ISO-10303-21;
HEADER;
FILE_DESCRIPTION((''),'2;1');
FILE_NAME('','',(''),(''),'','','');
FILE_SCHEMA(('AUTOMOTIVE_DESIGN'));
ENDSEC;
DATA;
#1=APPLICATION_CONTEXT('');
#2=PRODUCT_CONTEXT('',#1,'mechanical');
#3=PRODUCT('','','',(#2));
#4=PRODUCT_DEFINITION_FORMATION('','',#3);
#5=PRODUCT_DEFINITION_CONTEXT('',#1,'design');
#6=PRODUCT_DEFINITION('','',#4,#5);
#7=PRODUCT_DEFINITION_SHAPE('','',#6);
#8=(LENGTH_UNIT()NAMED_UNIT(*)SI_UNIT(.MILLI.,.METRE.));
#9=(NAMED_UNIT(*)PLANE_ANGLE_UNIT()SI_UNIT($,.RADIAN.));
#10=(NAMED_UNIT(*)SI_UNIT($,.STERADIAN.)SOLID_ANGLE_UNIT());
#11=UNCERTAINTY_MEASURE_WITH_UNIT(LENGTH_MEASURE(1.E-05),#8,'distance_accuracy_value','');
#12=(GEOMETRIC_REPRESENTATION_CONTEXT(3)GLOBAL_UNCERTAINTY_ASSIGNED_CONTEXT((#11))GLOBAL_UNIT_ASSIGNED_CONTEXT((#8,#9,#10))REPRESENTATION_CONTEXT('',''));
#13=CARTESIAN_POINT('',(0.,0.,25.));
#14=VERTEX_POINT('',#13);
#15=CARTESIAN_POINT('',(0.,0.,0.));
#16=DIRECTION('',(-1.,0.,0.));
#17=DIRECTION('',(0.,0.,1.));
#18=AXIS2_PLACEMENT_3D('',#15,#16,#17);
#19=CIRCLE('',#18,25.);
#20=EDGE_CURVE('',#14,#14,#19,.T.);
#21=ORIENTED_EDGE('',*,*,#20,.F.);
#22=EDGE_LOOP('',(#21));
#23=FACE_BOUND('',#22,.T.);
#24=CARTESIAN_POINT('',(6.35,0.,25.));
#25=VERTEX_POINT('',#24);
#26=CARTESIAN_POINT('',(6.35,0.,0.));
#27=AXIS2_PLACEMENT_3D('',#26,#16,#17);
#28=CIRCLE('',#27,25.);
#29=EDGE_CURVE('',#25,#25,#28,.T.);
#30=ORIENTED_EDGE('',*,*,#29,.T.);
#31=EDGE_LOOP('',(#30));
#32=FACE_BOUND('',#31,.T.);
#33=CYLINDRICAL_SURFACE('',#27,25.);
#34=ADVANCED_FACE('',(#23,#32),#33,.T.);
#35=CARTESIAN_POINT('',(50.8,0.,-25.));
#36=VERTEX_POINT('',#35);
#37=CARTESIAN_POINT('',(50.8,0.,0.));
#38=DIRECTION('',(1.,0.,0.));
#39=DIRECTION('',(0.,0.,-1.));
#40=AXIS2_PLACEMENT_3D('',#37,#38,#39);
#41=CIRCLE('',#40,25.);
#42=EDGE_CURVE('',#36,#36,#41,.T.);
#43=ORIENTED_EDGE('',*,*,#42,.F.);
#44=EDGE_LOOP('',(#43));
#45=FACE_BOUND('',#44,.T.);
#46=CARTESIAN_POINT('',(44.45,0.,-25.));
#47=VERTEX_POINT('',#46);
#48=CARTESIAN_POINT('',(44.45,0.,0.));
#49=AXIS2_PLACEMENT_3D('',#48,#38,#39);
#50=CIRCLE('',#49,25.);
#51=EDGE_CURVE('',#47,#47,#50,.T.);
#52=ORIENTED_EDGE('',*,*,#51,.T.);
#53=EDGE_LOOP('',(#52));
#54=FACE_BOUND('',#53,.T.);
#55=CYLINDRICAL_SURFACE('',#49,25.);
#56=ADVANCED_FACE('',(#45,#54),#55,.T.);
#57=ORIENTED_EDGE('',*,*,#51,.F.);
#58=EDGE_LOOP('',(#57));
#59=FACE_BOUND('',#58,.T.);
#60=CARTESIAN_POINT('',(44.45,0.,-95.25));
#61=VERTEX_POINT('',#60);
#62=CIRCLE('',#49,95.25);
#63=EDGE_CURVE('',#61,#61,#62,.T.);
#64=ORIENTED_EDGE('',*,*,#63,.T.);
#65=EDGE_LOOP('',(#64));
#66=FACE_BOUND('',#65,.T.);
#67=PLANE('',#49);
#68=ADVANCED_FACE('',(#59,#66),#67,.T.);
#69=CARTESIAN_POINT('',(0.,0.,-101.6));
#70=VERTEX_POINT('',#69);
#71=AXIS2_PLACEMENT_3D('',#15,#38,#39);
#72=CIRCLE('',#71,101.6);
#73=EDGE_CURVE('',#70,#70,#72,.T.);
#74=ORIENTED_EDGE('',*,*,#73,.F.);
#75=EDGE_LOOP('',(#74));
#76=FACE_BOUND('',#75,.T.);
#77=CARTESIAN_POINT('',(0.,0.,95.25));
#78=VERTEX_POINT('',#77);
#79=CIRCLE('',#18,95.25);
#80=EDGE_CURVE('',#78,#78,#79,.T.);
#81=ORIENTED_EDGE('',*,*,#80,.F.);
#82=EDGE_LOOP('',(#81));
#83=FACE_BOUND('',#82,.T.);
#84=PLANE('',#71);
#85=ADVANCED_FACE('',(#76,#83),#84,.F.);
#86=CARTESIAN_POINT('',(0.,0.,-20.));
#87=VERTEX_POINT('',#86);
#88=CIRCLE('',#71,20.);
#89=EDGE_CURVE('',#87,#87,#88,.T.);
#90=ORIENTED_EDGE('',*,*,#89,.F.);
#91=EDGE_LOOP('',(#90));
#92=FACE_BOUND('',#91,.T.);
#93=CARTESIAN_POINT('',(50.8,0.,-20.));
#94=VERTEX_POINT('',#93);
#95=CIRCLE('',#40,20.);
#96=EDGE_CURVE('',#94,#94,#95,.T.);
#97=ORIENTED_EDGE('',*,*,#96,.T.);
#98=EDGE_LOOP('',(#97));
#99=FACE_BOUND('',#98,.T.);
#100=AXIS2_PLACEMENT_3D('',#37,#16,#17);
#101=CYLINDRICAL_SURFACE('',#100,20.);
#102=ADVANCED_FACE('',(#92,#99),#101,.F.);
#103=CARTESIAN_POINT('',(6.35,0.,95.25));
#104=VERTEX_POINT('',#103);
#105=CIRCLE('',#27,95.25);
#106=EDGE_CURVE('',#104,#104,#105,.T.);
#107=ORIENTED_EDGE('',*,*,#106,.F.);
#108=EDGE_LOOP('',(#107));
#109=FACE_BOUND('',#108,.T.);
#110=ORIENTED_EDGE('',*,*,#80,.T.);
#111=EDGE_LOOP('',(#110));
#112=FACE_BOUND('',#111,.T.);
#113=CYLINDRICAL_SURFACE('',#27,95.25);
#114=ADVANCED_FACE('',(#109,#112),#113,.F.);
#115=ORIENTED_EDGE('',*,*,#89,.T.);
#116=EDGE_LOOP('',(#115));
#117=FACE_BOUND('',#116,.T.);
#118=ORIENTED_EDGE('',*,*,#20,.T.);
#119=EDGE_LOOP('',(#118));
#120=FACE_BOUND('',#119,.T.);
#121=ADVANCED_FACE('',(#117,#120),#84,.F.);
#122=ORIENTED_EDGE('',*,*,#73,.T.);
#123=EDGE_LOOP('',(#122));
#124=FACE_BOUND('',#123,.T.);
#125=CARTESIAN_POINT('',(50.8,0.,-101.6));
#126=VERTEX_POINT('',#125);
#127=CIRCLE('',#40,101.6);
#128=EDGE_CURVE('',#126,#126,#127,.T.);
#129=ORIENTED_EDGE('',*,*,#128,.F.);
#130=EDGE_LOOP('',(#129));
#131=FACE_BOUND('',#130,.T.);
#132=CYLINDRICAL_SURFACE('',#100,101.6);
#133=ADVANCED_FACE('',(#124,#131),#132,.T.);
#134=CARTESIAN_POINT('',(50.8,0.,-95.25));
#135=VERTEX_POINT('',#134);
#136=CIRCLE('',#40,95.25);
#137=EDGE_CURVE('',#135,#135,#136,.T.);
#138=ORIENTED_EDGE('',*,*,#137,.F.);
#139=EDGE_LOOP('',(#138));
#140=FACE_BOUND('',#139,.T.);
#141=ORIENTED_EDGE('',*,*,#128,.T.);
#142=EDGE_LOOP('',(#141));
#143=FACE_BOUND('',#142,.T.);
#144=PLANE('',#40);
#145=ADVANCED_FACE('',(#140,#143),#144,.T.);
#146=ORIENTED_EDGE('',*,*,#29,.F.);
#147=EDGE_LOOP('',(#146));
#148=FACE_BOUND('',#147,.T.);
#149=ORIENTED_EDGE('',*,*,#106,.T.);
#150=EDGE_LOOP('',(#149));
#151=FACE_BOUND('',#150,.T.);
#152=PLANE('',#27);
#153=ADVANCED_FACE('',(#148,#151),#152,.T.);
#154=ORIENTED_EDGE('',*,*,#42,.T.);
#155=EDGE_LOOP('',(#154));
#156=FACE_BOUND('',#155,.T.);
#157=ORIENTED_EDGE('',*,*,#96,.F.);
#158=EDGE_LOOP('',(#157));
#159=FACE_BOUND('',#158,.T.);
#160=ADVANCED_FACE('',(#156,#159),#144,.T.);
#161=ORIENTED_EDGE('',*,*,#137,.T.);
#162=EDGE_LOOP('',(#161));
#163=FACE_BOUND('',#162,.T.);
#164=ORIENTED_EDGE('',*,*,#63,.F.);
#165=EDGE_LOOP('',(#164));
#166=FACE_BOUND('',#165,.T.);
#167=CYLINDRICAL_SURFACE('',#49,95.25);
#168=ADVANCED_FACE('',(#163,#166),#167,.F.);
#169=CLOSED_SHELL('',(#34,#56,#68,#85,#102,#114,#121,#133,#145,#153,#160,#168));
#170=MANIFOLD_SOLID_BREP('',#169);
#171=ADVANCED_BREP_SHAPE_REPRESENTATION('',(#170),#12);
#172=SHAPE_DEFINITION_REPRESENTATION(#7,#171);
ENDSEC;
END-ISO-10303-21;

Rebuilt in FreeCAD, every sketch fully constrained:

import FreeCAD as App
import Part
import Sketcher
from FreeCAD import Vector
Q = App.Units.Quantity

doc = App.newDocument("Part")
body = doc.addObject("PartDesign::Body", "Body")

# Sketch on YZ plane
sketch1 = doc.addObject("Sketcher::SketchObject", "Sketch")
body.addObject(sketch1)
sketch1.AttachmentSupport = (doc.YZ_Plane, [""])
sketch1.MapMode = "FlatFace"
sketch1.addGeometry([
    Part.Circle(Vector(0, 0, 0), Vector(0, 0, 1), 101.6),
    Part.Circle(Vector(0, 0, 0), Vector(0, 0, 1), 20),
], False)
sketch1.addConstraint([
    Sketcher.Constraint("Coincident", 0, 3, -1, 1),
    Sketcher.Constraint("Coincident", 1, 3, -1, 1),
    Sketcher.Constraint("Diameter", 0, Q("8 in")),
    Sketcher.Constraint("Diameter", 1, 40.0),
])
pad1 = doc.addObject("PartDesign::Pad", "Pad")
body.addObject(pad1)
pad1.Profile = sketch1
pad1.Length = Q("2 in")

# Sketch on YZ plane
sketch2 = doc.addObject("Sketcher::SketchObject", "Sketch001")
body.addObject(sketch2)
sketch2.AttachmentSupport = (doc.YZ_Plane, [""])
sketch2.MapMode = "FlatFace"
sketch2.addGeometry([
    Part.Circle(Vector(0, 0, 0), Vector(0, 0, 1), 95.25),
    Part.Circle(Vector(0, 0, 0), Vector(0, 0, 1), 25),
], False)
sketch2.addConstraint([
    Sketcher.Constraint("Coincident", 0, 3, -1, 1),
    Sketcher.Constraint("Coincident", 1, 3, -1, 1),
    Sketcher.Constraint("Diameter", 0, Q("7.5 in")),
    Sketcher.Constraint("Diameter", 1, 50.0),
])
pocket1 = doc.addObject("PartDesign::Pocket", "Pocket")
body.addObject(pocket1)
pocket1.Profile = sketch2
pocket1.Length = Q("0.25 in")
pocket1.Reversed = True

# Sketch on YZ plane
sketch3 = doc.addObject("Sketcher::SketchObject", "Sketch002")
body.addObject(sketch3)
sketch3.AttachmentSupport = (doc.YZ_Plane, [""])
sketch3.MapMode = "FlatFace"
sketch3.AttachmentOffset = App.Placement(Vector(0, 0, 1.75 * 25.4), App.Rotation())
sketch3.addGeometry([
    Part.Circle(Vector(0, 0, 0), Vector(0, 0, 1), 95.25),
    Part.Circle(Vector(0, 0, 0), Vector(0, 0, 1), 25),
], False)
sketch3.addConstraint([
    Sketcher.Constraint("Coincident", 0, 3, -1, 1),
    Sketcher.Constraint("Coincident", 1, 3, -1, 1),
    Sketcher.Constraint("Diameter", 0, Q("7.5 in")),
    Sketcher.Constraint("Diameter", 1, 50.0),
])
pocket2 = doc.addObject("PartDesign::Pocket", "Pocket001")
body.addObject(pocket2)
pocket2.Profile = sketch3
pocket2.Length = Q("0.25 in")
pocket2.Reversed = True

doc.recompute()
